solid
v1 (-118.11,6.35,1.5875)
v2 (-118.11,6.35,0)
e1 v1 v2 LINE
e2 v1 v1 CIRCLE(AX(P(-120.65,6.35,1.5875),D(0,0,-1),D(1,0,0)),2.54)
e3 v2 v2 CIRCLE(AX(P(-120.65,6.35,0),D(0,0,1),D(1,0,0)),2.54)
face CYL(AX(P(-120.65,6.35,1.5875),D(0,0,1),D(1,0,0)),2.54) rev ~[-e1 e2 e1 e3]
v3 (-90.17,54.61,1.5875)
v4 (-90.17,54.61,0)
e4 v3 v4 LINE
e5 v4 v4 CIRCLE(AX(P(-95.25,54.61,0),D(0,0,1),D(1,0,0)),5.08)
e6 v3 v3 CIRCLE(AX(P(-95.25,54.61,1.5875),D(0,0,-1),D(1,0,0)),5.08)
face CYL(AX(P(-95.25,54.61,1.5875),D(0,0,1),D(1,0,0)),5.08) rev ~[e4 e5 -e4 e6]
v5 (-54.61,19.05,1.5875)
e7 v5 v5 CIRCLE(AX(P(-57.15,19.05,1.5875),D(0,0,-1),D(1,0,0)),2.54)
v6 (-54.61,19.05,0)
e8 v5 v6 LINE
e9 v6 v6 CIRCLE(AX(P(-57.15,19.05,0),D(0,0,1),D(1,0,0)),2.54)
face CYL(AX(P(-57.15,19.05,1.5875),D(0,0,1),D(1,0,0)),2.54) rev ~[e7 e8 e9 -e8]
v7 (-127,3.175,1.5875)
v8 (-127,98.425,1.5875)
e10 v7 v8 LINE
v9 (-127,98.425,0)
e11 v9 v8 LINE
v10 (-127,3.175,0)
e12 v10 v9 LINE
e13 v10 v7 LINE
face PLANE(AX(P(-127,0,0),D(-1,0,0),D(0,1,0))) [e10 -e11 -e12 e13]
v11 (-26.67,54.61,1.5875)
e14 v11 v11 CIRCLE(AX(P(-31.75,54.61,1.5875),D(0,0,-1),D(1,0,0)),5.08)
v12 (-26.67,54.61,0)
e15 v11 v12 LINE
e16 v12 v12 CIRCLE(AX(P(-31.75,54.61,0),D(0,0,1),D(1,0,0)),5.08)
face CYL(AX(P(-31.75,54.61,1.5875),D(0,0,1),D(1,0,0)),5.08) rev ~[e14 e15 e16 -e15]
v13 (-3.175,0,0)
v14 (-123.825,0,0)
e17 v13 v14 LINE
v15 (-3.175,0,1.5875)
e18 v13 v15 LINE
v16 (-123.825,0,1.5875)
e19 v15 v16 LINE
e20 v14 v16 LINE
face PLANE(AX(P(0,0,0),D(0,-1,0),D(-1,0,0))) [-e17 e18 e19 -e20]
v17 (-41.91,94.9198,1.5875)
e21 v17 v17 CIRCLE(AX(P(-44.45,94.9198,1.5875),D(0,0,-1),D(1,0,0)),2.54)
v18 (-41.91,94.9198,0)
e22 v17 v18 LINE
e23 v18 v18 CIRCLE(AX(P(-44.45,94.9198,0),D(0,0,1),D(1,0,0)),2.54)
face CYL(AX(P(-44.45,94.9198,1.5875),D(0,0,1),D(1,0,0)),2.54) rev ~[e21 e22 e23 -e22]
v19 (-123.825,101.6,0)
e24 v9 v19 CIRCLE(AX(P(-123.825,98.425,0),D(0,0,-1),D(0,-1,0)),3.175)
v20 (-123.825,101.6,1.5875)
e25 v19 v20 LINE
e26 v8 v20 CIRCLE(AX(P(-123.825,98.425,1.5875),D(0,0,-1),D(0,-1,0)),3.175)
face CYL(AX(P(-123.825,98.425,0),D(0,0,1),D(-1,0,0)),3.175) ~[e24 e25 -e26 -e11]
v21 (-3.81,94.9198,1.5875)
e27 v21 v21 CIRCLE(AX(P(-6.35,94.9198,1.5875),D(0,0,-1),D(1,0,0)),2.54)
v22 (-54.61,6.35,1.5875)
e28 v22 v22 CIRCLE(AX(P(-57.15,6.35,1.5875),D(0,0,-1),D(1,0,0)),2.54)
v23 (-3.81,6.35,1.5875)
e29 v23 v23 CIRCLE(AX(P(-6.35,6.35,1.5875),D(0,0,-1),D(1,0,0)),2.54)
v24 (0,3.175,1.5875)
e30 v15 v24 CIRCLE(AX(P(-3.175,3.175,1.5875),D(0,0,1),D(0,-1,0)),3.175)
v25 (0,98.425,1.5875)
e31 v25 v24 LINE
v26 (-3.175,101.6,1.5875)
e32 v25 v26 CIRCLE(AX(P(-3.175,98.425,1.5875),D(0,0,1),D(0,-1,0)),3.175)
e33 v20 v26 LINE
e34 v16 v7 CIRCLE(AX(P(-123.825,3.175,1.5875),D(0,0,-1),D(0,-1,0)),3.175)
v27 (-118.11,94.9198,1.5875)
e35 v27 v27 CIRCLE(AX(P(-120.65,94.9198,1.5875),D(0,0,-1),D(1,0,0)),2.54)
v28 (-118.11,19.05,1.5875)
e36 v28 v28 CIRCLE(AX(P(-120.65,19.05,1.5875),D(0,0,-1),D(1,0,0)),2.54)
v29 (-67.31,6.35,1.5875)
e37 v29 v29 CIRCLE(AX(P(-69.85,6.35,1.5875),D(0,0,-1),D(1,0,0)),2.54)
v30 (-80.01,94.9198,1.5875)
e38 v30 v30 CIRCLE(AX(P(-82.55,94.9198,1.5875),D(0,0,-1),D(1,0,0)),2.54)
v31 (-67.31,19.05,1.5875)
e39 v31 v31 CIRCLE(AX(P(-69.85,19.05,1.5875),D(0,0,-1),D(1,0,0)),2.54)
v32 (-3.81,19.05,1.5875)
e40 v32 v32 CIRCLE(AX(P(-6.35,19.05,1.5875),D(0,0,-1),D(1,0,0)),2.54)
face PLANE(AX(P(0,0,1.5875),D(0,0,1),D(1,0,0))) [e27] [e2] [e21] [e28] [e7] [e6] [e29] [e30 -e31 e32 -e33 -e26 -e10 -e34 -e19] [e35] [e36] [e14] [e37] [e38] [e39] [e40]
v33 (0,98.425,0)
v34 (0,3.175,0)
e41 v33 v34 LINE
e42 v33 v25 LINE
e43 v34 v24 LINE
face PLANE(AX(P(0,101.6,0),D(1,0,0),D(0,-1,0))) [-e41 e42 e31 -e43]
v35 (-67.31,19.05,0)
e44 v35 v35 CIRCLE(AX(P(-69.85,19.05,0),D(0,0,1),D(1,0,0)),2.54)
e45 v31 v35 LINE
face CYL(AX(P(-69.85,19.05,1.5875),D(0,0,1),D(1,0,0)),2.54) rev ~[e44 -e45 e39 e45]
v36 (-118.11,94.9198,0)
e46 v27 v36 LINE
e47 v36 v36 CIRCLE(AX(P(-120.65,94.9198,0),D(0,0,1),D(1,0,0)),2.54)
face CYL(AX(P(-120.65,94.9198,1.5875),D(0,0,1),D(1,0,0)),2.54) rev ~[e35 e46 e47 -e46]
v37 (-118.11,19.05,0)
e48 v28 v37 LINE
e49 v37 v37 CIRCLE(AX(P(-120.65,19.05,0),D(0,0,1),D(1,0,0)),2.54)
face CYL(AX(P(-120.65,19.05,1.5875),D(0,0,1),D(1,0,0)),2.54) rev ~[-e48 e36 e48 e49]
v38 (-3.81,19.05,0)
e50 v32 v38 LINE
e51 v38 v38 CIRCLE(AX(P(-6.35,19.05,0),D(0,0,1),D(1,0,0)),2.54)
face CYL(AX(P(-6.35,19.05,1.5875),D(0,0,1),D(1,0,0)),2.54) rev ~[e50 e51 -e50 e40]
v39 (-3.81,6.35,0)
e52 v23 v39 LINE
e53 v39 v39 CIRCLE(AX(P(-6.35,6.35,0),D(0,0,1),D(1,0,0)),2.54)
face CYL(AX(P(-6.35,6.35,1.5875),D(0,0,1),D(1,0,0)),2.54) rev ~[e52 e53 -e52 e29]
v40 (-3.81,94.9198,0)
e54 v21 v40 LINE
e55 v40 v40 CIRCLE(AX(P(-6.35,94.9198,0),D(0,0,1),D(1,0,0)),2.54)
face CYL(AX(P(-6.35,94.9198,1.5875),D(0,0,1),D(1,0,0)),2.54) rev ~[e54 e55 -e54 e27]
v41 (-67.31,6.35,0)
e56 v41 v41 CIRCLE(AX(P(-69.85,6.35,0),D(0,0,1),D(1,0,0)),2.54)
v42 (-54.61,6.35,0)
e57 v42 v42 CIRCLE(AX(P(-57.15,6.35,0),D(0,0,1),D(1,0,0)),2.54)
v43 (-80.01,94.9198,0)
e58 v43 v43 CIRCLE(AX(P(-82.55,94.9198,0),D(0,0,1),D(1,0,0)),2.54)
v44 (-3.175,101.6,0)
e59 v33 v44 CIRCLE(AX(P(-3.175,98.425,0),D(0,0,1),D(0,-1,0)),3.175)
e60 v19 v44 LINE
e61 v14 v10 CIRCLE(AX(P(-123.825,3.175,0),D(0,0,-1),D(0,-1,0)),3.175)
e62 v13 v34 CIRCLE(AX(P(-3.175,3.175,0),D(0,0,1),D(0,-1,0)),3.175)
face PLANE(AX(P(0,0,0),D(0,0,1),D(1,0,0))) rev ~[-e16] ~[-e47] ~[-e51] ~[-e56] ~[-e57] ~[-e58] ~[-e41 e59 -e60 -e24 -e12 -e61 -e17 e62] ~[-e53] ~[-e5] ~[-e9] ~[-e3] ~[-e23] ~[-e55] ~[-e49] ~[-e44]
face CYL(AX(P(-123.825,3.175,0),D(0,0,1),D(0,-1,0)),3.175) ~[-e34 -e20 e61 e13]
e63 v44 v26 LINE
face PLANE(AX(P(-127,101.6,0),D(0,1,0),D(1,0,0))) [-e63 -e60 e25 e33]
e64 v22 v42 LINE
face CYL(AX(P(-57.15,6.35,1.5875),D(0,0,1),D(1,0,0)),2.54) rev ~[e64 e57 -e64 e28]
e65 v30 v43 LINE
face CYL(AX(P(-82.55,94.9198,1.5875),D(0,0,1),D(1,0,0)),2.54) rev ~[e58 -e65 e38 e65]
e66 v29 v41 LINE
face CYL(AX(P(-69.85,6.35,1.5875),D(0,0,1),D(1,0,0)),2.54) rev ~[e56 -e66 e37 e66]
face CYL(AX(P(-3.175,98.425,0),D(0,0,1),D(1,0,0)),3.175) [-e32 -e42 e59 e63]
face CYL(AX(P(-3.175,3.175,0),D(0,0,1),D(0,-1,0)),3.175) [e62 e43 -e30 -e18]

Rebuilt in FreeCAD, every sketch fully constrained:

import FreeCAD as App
import Part
import Sketcher
from FreeCAD import Vector
Q = App.Units.Quantity


def edges_at(feature, points):
    """Names of the edges that pass closest to the given points."""
    edges = feature.Shape.Edges
    near = lambda p: min(range(len(edges)), key=lambda i: edges[i].distToShape(Part.Vertex(*p))[0])
    return sorted({f"Edge{near(p) + 1}" for p in points})


def add_polygon(sketch, points):
    """Adds a closed chain of lines whose ends are joined by coincident constraints."""
    first, n = sketch.GeometryCount, len(points)
    for a, b in zip(points, points[1:] + points[:1]):
        sketch.addGeometry(Part.LineSegment(App.Vector(*a, 0), App.Vector(*b, 0)), False)
    for i in range(n):
        sketch.addConstraint(Sketcher.Constraint("Coincident", first + i, 2, first + (i + 1) % n, 1))

doc = App.newDocument("Part")
body = doc.addObject("PartDesign::Body", "Body")

sketch1 = doc.addObject("Sketcher::SketchObject", "Sketch")
body.addObject(sketch1)
sketch1.AttachmentSupport = (doc.XY_Plane, [""])
sketch1.MapMode = "FlatFace"
add_polygon(sketch1, [(-127, 0), (0, 0), (0, 102), (-127, 102)])
sketch1.addConstraint([
    Sketcher.Constraint("Horizontal", 0),
    Sketcher.Constraint("Vertical", 1),
    Sketcher.Constraint("Horizontal", 2),
    Sketcher.Constraint("Vertical", 3),
    Sketcher.Constraint("Coincident", 0, 2, -1, 1),
    Sketcher.Constraint("DistanceX", 0, 1, 0, 2, Q("5 in")),
    Sketcher.Constraint("DistanceY", 1, 1, 1, 2, Q("4 in")),
])
pad1 = doc.addObject("PartDesign::Pad", "Pad")
body.addObject(pad1)
pad1.Profile = sketch1
pad1.Length = Q("0.0625 in")

sketch2 = doc.addObject("Sketcher::SketchObject", "Sketch001")
body.addObject(sketch2)
sketch2.AttachmentSupport = (doc.XY_Plane, [""])
sketch2.MapMode = "FlatFace"
sketch2.AttachmentOffset = App.Placement(Vector(0, 0, 0.0625 * 25.4), App.Rotation())
sketch2.addGeometry([
    Part.Circle(Vector(-6.3, 94.9, 0), Vector(0, 0, 1), 2.5),
    Part.Circle(Vector(-31.8, 54.6, 0), Vector(0, 0, 1), 5.1),
    Part.Circle(Vector(-95.2, 54.6, 0), Vector(0, 0, 1), 5.1),
    Part.Circle(Vector(-69.8, 19.1, 0), Vector(0, 0, 1), 2.5),
    Part.Circle(Vector(-57.1, 19.1, 0), Vector(0, 0, 1), 2.5),
    Part.Circle(Vector(-6.3, 19.1, 0), Vector(0, 0, 1), 2.5),
    Part.Circle(Vector(-44.5, 94.9, 0), Vector(0, 0, 1), 2.5),
    Part.Circle(Vector(-6.3, 6.3, 0), Vector(0, 0, 1), 2.5),
    Part.Circle(Vector(-57.1, 6.3, 0), Vector(0, 0, 1), 2.5),
    Part.Circle(Vector(-82.5, 94.9, 0), Vector(0, 0, 1), 2.5),
    Part.Circle(Vector(-69.8, 6.3, 0), Vector(0, 0, 1), 2.5),
    Part.Circle(Vector(-120.7, 6.3, 0), Vector(0, 0, 1), 2.5),
    Part.Circle(Vector(-120.7, 19.1, 0), Vector(0, 0, 1), 2.5),
    Part.Circle(Vector(-120.7, 94.9, 0), Vector(0, 0, 1), 2.5),
], False)
sketch2.addConstraint([
    Sketcher.Constraint("Equal", 1, 2),
    Sketcher.Constraint("Equal", 0, 3),
    Sketcher.Constraint("Equal", 3, 4),
    Sketcher.Constraint("Equal", 4, 5),
    Sketcher.Constraint("Equal", 5, 6),
    Sketcher.Constraint("Equal", 6, 7),
    Sketcher.Constraint("Equal", 7, 8),
    Sketcher.Constraint("Equal", 8, 9),
    Sketcher.Constraint("Equal", 9, 10),
    Sketcher.Constraint("Equal", 10, 11),
    Sketcher.Constraint("Equal", 11, 12),
    Sketcher.Constraint("Equal", 12, 13),
    Sketcher.Constraint("Horizontal", 1, 3, 2, 3),
    Sketcher.Constraint("Horizontal", 3, 3, 4, 3),
    Sketcher.Constraint("Horizontal", 4, 3, 5, 3),
    Sketcher.Constraint("Horizontal", 0, 3, 6, 3),
    Sketcher.Constraint("Horizontal", 7, 3, 8, 3),
    Sketcher.Constraint("Horizontal", 6, 3, 9, 3),
    Sketcher.Constraint("Horizontal", 8, 3, 10, 3),
    Sketcher.Constraint("Horizontal", 10, 3, 11, 3),
    Sketcher.Constraint("Horizontal", 5, 3, 12, 3),
    Sketcher.Constraint("Horizontal", 9, 3, 13, 3),
    Sketcher.Constraint("Vertical", 0, 3, 5, 3),
    Sketcher.Constraint("Vertical", 5, 3, 7, 3),
    Sketcher.Constraint("Vertical", 4, 3, 8, 3),
    Sketcher.Constraint("Vertical", 3, 3, 10, 3),
    Sketcher.Constraint("Vertical", 11, 3, 12, 3),
    Sketcher.Constraint("Vertical", 12, 3, 13, 3),
    Sketcher.Constraint("Diameter", 0, Q("0.2 in")),
    Sketcher.Constraint("Diameter", 1, Q("0.4 in")),
    Sketcher.Constraint("DistanceX", 4, 3, 0, 3, Q("2 in")),
    Sketcher.Constraint("DistanceX", 2, 3, 6, 3, Q("2 in")),
    Sketcher.Constraint("DistanceX", 9, 3, 1, 3, Q("2 in")),
    Sketcher.Constraint("DistanceX", 9, 3, 0, 3, Q("3 in")),
    Sketcher.Constraint("DistanceX", 11, 3, 10, 3, Q("2 in")),
    Sketcher.Constraint("DistanceX", 13, 3, 6, 3, Q("3 in")),
    Sketcher.Constraint("DistanceX", 3, 3, 1, 3, Q("1.5 in")),
    Sketcher.Constraint("DistanceY", 7, 3, 5, 3, Q("0.5 in")),
    Sketcher.Constraint("DistanceX", 0, 3, -1, 1, Q("0.25 in")),
    Sketcher.Constraint("DistanceY", -1, 1, 7, 3, Q("0.25 in")),
    Sketcher.Constraint("DistanceY", 3, 3, 2, 3, Q("1.4 in")),
    Sketcher.Constraint("DistanceY", -1, 1, 0, 3, Q("3.737 in")),
])
pocket1 = doc.addObject("PartDesign::Pocket", "Pocket")
body.addObject(pocket1)
pocket1.Profile = sketch2
pocket1.Length = Q("1 in")
doc.recompute()

fillet = doc.addObject("PartDesign::Fillet", "Fillet")
body.addObject(fillet)
fillet.Base = (pocket1, edges_at(pocket1, [
    (-127, 101.6, 0.794),
    (0, 101.6, 0.794),
    (0, 0, 0.794),
    (-127, 0, 0.794),
]))
fillet.Radius = Q("0.125 in")

doc.recompute()
